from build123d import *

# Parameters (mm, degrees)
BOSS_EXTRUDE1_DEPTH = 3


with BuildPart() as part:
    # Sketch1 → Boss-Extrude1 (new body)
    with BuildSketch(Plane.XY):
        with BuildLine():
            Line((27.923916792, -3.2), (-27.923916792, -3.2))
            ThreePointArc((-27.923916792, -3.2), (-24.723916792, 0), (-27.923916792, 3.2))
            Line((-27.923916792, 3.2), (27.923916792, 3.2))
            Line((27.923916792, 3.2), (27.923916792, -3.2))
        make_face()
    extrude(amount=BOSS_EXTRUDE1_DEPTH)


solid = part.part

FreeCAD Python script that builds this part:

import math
import FreeCAD as App
import Part
import Sketcher

V = App.Vector

doc = App.newDocument("Part")
body = doc.addObject("PartDesign::Body", "Body")

# Sketch on XY plane
sketch1 = doc.addObject("Sketcher::SketchObject", "Sketch")
body.addObject(sketch1)
sketch1.AttachmentSupport = (doc.XY_Plane, [""])
sketch1.MapMode = "FlatFace"
sketch1.addGeometry([
    Part.LineSegment(V(-27.9, -3.2, 0), V(27.9, -3.2, 0)),
    Part.LineSegment(V(27.9, -3.2, 0), V(27.9, 3.2, 0)),
    Part.LineSegment(V(27.9, 3.2, 0), V(-27.9, 3.2, 0)),
    Part.ArcOfCircle(Part.Circle(V(-27.9, 0, 0), V(0, 0, 1), 3.2), math.radians(-90), math.radians(90)),
], False)
sketch1.addConstraint([
    Sketcher.Constraint("Coincident", 0, 2, 1, 1),
    Sketcher.Constraint("Coincident", 1, 2, 2, 1),
    Sketcher.Constraint("Tangent", 2, 2, 3, 2),
    Sketcher.Constraint("Tangent", 3, 1, 0, 1),
    Sketcher.Constraint("Horizontal", 0),
    Sketcher.Constraint("Vertical", 1),
    Sketcher.Constraint("Horizontal", 2),
    Sketcher.Constraint("Symmetric", 0, 2, 2, 2, -1, 1),
    Sketcher.Constraint("Radius", 3, 3.2),
    Sketcher.Constraint("DistanceX", 0, 1, 0, 2, 55.847834),
])
pad1 = doc.addObject("PartDesign::Pad", "Pad")
body.addObject(pad1)
pad1.Profile = sketch1
pad1.Length = 3

doc.recompute()
